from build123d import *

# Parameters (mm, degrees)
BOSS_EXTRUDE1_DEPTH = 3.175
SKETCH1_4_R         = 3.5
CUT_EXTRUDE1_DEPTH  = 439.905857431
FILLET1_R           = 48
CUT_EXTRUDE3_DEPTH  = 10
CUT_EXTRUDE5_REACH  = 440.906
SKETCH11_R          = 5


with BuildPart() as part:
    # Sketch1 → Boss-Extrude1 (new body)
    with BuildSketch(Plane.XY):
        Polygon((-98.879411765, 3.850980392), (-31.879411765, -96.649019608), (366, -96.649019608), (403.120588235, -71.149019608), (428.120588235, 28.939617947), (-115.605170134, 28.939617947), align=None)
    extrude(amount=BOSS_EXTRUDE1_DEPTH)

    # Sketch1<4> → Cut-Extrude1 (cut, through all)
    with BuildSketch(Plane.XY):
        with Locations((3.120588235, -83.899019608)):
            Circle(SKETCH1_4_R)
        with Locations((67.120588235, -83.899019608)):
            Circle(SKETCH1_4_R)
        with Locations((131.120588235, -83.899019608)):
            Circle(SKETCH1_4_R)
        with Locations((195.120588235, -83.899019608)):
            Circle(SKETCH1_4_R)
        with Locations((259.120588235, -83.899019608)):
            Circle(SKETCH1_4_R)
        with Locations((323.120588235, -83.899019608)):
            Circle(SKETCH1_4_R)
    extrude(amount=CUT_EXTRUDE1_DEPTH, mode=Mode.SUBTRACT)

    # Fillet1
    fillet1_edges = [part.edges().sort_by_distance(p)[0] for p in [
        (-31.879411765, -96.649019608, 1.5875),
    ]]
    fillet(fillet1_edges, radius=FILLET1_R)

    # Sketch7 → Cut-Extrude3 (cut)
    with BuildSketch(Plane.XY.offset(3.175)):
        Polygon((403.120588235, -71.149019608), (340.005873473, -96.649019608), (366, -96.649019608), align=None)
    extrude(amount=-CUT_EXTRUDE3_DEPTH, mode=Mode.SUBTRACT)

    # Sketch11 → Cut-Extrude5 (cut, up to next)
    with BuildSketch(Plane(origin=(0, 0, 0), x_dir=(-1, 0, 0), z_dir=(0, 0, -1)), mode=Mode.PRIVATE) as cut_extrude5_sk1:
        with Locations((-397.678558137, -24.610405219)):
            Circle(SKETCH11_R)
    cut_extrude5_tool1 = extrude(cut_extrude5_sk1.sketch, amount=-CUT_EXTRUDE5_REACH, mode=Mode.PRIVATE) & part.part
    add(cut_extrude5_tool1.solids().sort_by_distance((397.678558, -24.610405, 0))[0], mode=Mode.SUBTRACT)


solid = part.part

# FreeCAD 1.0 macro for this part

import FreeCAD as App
import Part
import Sketcher

V = App.Vector
Q = App.Units.Quantity


def edges_at(feature, points):
    """Names of the edges that pass closest to the given points."""
    edges = feature.Shape.Edges
    near = lambda p: min(range(len(edges)), key=lambda i: edges[i].distToShape(Part.Vertex(*p))[0])
    return sorted({f"Edge{near(p) + 1}" for p in points})

doc = App.newDocument("Part")
body = doc.addObject("PartDesign::Body", "Body")

# Sketch on XY plane
sketch1 = body.newObject("Sketcher::SketchObject", "Sketch")
sketch1.AttachmentSupport = (doc.getObject("XY_Plane"), [""])
sketch1.MapMode = "FlatFace"
sketch1.addGeometry([
    Part.LineSegment(V(-99, 4, 0), V(-32, -97, 0)),  # 0
    Part.LineSegment(V(-32, -97, 0), V(366, -97, 0)),  # 1
    Part.LineSegment(V(366, -97, 0), V(403, -71, 0)),  # 2
    Part.LineSegment(V(403, -71, 0), V(428, 29, 0)),  # 3
    Part.LineSegment(V(428, 29, 0), V(-116, 29, 0)),  # 4
    Part.LineSegment(V(-116, 29, 0), V(-99, 4, 0)),  # 5
], False)
sketch1.addConstraint([
    Sketcher.Constraint("Coincident", 0, 2, 1, 1),
    Sketcher.Constraint("Coincident", 1, 2, 2, 1),
    Sketcher.Constraint("Coincident", 2, 2, 3, 1),
    Sketcher.Constraint("Coincident", 3, 2, 4, 1),
    Sketcher.Constraint("Coincident", 4, 2, 5, 1),
    Sketcher.Constraint("Coincident", 5, 2, 0, 1),
    Sketcher.Constraint("Horizontal", 1),
    Sketcher.Constraint("Horizontal", 4),
    Sketcher.Constraint("Parallel", 0, 5),
    Sketcher.Constraint("DistanceX", -1, 1, 1, 2, Q("366 mm")),
    Sketcher.Constraint("DistanceX", 0, 2, 2, 2, Q("435 mm")),
    Sketcher.Constraint("DistanceX", 2, 2, 3, 2, Q("25 mm")),
    Sketcher.Constraint("DistanceX", 5, 2, 0, 2, Q("67 mm")),
    Sketcher.Constraint("DistanceY", 2, 2, 5, 2, Q("75 mm")),
    Sketcher.Constraint("DistanceY", 1, 2, 2, 2, Q("25.5 mm")),
    Sketcher.Constraint("DistanceX", 1, 1, 1, 2, Q("397.879412 mm")),
    Sketcher.Constraint("DistanceX", 4, 2, 4, 1, Q("543.725758 mm")),
    Sketcher.Constraint("DistanceY", 0, 2, -1, 1, Q("96.64902 mm")),
])
pad1 = body.newObject("PartDesign::Pad", "Pad")
pad1.Profile = sketch1
pad1.Length = 3.175

# Sketch on XY plane
sketch2 = body.newObject("Sketcher::SketchObject", "Sketch001")
sketch2.AttachmentSupport = (doc.getObject("XY_Plane"), [""])
sketch2.MapMode = "FlatFace"
sketch2.addGeometry([
    Part.Circle(V(3.1, -83.9, 0), V(0, 0, 1), 3.5),  # 0
    Part.Circle(V(67.1, -83.9, 0), V(0, 0, 1), 3.5),  # 1
    Part.Circle(V(131.1, -83.9, 0), V(0, 0, 1), 3.5),  # 2
    Part.Circle(V(195.1, -83.9, 0), V(0, 0, 1), 3.5),  # 3
    Part.Circle(V(259.1, -83.9, 0), V(0, 0, 1), 3.5),  # 4
    Part.Circle(V(323.1, -83.9, 0), V(0, 0, 1), 3.5),  # 5
], False)
sketch2.addConstraint([
    Sketcher.Constraint("Equal", 0, 1),
    Sketcher.Constraint("Equal", 1, 2),
    Sketcher.Constraint("Equal", 2, 3),
    Sketcher.Constraint("Equal", 3, 4),
    Sketcher.Constraint("Equal", 4, 5),
    Sketcher.Constraint("Horizontal", 0, 3, 1, 3),
    Sketcher.Constraint("Horizontal", 1, 3, 2, 3),
    Sketcher.Constraint("Horizontal", 2, 3, 3, 3),
    Sketcher.Constraint("Horizontal", 3, 3, 4, 3),
    Sketcher.Constraint("Horizontal", 4, 3, 5, 3),
    Sketcher.Constraint("Diameter", 0, Q("7 mm")),
    Sketcher.Constraint("DistanceX", 0, 3, 1, 3, Q("64 mm")),
    Sketcher.Constraint("DistanceX", 1, 3, 2, 3, Q("64 mm")),
    Sketcher.Constraint("DistanceX", 2, 3, 3, 3, Q("64 mm")),
    Sketcher.Constraint("DistanceX", 3, 3, 4, 3, Q("64 mm")),
    Sketcher.Constraint("DistanceX", 4, 3, 5, 3, Q("64 mm")),
    Sketcher.Constraint("DistanceX", -1, 1, 0, 3, Q("3.120588 mm")),
    Sketcher.Constraint("DistanceY", 0, 3, -1, 1, Q("83.89902 mm")),
])
pocket1 = body.newObject("PartDesign::Pocket", "Pocket")
pocket1.Profile = sketch2
pocket1.Type = "ThroughAll"
pocket1.Reversed = True
doc.recompute()

fillet = body.newObject("PartDesign::Fillet", "Fillet")
fillet.Base = (pocket1, edges_at(pocket1, [(-31.879, -96.649, 1.587)]))
fillet.Radius = 48

# Sketch on XY plane
sketch3 = body.newObject("Sketcher::SketchObject", "Sketch002")
sketch3.AttachmentSupport = (doc.getObject("XY_Plane"), [""])
sketch3.MapMode = "FlatFace"
sketch3.AttachmentOffset = App.Placement(V(0, 0, 3.175), App.Rotation())
sketch3.addGeometry([
    Part.LineSegment(V(403, -71, 0), V(340, -97, 0)),
    Part.LineSegment(V(340, -97, 0), V(366, -97, 0)),
    Part.LineSegment(V(366, -97, 0), V(403, -71, 0)),
], False)
sketch3.addConstraint([
    Sketcher.Constraint("Coincident", 0, 2, 1, 1),
    Sketcher.Constraint("Coincident", 1, 2, 2, 1),
    Sketcher.Constraint("Coincident", 2, 2, 0, 1),
    Sketcher.Constraint("Horizontal", 1),
    Sketcher.Constraint("Angle", 0, Q("-158 deg")),
    Sketcher.Constraint("DistanceX", -1, 1, 1, 2, Q("366 mm")),
    Sketcher.Constraint("DistanceY", 1, 2, 2, 2, Q("25.5 mm")),
    Sketcher.Constraint("Distance", 2, Q("45.035409 mm")),
    Sketcher.Constraint("DistanceY", 0, 2, -1, 1, Q("96.64902 mm")),
])
pocket2 = body.newObject("PartDesign::Pocket", "Pocket001")
pocket2.Profile = sketch3
pocket2.Length = 10

# Sketch on XY plane
sketch4 = body.newObject("Sketcher::SketchObject", "Sketch003")
sketch4.AttachmentSupport = (doc.getObject("XY_Plane"), [""])
sketch4.MapMode = "FlatFace"
sketch4.addGeometry(Part.Circle(V(398, -25, 0), V(0, 0, 1), 5), False)
sketch4.addConstraint([
    Sketcher.Constraint("Diameter", 0, Q("10 mm")),
    Sketcher.Constraint("DistanceX", -1, 1, 0, 3, Q("397.678558 mm")),
    Sketcher.Constraint("DistanceY", 0, 3, -1, 1, Q("24.610405 mm")),
])
pocket3 = body.newObject("PartDesign::Pocket", "Pocket002")
pocket3.Profile = sketch4
pocket3.Type = "UpToFirst"
pocket3.Reversed = True

doc.recompute()
